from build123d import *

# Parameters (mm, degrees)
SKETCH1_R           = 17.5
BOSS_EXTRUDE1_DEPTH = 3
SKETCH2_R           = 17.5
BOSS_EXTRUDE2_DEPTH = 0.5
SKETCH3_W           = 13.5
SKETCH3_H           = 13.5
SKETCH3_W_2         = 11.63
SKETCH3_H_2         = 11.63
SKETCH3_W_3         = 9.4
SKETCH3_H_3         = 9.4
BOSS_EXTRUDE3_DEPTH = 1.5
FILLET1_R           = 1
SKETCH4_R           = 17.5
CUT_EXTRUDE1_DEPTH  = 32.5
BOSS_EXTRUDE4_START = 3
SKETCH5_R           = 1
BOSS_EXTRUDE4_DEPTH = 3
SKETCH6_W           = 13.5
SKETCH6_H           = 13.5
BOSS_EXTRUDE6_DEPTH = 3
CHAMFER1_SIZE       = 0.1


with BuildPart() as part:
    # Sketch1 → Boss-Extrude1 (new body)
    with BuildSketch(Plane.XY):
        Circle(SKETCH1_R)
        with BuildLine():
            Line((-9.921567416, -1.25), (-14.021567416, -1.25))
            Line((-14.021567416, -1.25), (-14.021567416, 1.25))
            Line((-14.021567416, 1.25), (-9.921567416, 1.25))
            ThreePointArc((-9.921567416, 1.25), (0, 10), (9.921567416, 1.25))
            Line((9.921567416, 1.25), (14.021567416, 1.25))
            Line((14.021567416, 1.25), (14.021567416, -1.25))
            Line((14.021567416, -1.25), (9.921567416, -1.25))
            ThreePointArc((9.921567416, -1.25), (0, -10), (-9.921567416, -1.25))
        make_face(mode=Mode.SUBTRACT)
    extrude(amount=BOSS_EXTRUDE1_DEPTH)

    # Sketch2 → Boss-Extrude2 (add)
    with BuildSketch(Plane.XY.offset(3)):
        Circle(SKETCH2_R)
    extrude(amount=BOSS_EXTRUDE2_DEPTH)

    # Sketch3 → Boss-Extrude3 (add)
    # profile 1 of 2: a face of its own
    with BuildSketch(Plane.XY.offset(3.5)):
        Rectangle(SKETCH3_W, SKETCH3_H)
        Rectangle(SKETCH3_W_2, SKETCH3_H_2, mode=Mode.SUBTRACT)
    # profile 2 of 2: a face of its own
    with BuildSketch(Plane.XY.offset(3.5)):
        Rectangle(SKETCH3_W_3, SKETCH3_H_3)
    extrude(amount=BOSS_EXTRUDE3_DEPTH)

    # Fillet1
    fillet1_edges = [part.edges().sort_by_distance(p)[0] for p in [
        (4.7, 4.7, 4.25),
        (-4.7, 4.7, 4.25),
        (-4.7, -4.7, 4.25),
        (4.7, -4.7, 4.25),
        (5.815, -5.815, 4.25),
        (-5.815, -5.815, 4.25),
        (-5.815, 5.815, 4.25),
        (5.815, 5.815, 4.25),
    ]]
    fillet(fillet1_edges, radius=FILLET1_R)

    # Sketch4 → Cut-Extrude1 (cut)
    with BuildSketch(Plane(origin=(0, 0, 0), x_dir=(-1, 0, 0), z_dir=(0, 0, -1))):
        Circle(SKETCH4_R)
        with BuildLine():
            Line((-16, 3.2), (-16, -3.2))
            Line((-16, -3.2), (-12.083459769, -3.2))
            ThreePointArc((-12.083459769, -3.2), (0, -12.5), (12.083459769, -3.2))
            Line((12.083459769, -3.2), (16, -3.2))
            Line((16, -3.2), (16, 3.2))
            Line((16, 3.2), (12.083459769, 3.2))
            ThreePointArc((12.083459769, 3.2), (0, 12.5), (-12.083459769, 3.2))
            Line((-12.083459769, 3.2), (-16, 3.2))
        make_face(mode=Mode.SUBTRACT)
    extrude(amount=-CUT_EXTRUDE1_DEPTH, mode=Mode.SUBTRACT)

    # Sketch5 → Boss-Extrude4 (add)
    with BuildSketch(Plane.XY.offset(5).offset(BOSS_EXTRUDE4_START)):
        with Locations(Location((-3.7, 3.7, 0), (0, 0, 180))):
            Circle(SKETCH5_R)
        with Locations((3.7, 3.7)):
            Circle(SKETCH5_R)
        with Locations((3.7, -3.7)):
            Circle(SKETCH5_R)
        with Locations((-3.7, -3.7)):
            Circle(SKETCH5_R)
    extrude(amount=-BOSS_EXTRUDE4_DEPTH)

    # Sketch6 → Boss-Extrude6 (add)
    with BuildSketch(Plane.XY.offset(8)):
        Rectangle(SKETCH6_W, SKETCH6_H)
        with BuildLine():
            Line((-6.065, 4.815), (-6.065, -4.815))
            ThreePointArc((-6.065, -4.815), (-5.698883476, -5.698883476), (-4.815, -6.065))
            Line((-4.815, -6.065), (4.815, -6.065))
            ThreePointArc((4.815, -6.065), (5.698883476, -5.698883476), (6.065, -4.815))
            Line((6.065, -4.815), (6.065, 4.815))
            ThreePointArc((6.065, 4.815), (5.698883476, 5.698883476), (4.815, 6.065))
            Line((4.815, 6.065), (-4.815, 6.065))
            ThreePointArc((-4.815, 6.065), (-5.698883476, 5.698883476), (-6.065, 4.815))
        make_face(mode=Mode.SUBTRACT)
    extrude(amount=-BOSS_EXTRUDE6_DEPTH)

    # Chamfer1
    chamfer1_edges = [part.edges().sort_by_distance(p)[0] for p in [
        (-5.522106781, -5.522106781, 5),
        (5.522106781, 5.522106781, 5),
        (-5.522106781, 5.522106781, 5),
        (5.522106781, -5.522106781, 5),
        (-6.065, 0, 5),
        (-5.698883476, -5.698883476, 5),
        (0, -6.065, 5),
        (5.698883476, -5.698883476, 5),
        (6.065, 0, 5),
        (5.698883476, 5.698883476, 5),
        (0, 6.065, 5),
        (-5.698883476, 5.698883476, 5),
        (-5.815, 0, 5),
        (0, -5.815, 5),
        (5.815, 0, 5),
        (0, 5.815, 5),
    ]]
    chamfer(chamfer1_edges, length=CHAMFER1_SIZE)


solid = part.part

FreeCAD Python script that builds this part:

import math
import FreeCAD as App
import Part
import Sketcher

V = App.Vector


def edges_at(feature, points):
    """Names of the edges that pass closest to the given points."""
    edges = feature.Shape.Edges
    near = lambda p: min(range(len(edges)), key=lambda i: edges[i].distToShape(Part.Vertex(*p))[0])
    return sorted({f"Edge{near(p) + 1}" for p in points})


def add_polygon(sketch, points):
    """Adds a closed chain of lines whose ends are joined by coincident constraints."""
    first, n = sketch.GeometryCount, len(points)
    for a, b in zip(points, points[1:] + points[:1]):
        sketch.addGeometry(Part.LineSegment(App.Vector(*a, 0), App.Vector(*b, 0)), False)
    for i in range(n):
        sketch.addConstraint(Sketcher.Constraint("Coincident", first + i, 2, first + (i + 1) % n, 1))

doc = App.newDocument("Part")
params = doc.addObject("Spreadsheet::Sheet", "Params")
for row, (alias, value) in enumerate([
    ("sketch1_diameter", "35 mm"),
    ("sketch1_radius", "10 mm"),
    ("sketch1_width", "4.1 mm"),
    ("sketch1_height", "2.5 mm"),
    ("pad1_length", "3 mm"),
    ("sketch2_diameter", "35 mm"),
    ("pad2_length", "0.5 mm"),
    ("sketch3_width", "13.5 mm"),
    ("sketch3_width2", "9.4 mm"),
    ("sketch3_width3", "11.63 mm"),
    ("pad3_length", "1.5 mm"),
    ("fillet_radius", "1 mm"),
    ("sketch4_diameter", "35 mm"),
    ("sketch4_radius", "12.5 mm"),
    ("sketch4_height", "6.4 mm"),
    ("pocket1_length", "32.5 mm"),
    ("sketch5_diameter", "2 mm"),
    ("pad4_length", "3 mm"),
    ("sketch6_radius", "1.25 mm"),
    ("sketch6_width", "13.5 mm"),
    ("sketch6_width2", "9.63 mm"),
    ("pad5_length", "3 mm"),
    ("chamfer_size", "0.1 mm"),
], start=1):
    params.set(f"A{row}", alias)
    params.set(f"B{row}", "=" + value)
    params.setAlias(f"B{row}", alias)

body = doc.addObject("PartDesign::Body", "Body")

# Sketch on XY plane
sketch1 = body.newObject("Sketcher::SketchObject", "Sketch")
sketch1.AttachmentSupport = (doc.getObject("XY_Plane"), [""])
sketch1.MapMode = "FlatFace"
sketch1.addGeometry(Part.Circle(V(0, 0, 0), V(0, 0, 1), 17.5), False)
sketch1.addGeometry(Part.ArcOfCircle(Part.Circle(V(0, 0, 0), V(0, 0, 1), 10), math.radians(-173), math.radians(-7)), False)
sketch1.addGeometry(Part.LineSegment(V(-9.9, -1.2, 0), V(-14, -1.2, 0)), False)
sketch1.addGeometry(Part.LineSegment(V(-14, -1.2, 0), V(-14, 1.2, 0)), False)
sketch1.addGeometry(Part.LineSegment(V(-14, 1.2, 0), V(-9.9, 1.2, 0)), False)
sketch1.addGeometry(Part.ArcOfCircle(Part.Circle(V(0, 0, 0), V(0, 0, 1), 10), math.radians(7), math.radians(173)), False)
sketch1.addGeometry(Part.LineSegment(V(9.9, 1.2, 0), V(14, 1.2, 0)), False)
sketch1.addGeometry(Part.LineSegment(V(14, 1.2, 0), V(14, -1.2, 0)), False)
sketch1.addGeometry(Part.LineSegment(V(14, -1.2, 0), V(9.9, -1.2, 0)), False)
sketch1.addConstraint(Sketcher.Constraint("Coincident", 1, 1, 2, 1))
sketch1.addConstraint(Sketcher.Constraint("Coincident", 2, 2, 3, 1))
sketch1.addConstraint(Sketcher.Constraint("Coincident", 3, 2, 4, 1))
sketch1.addConstraint(Sketcher.Constraint("Coincident", 4, 2, 5, 2))
sketch1.addConstraint(Sketcher.Constraint("Coincident", 5, 1, 6, 1))
sketch1.addConstraint(Sketcher.Constraint("Coincident", 6, 2, 7, 1))
sketch1.addConstraint(Sketcher.Constraint("Coincident", 7, 2, 8, 1))
sketch1.addConstraint(Sketcher.Constraint("Coincident", 8, 2, 1, 2))
sketch1.addConstraint(Sketcher.Constraint("Horizontal", 2))
sketch1.addConstraint(Sketcher.Constraint("Vertical", 3))
sketch1.addConstraint(Sketcher.Constraint("Horizontal", 4))
sketch1.addConstraint(Sketcher.Constraint("Horizontal", 6))
sketch1.addConstraint(Sketcher.Constraint("Vertical", 7))
sketch1.addConstraint(Sketcher.Constraint("Horizontal", 8))
sketch1.addConstraint(Sketcher.Constraint("Coincident", 0, 3, -1, 1))
sketch1.addConstraint(Sketcher.Constraint("Coincident", 1, 3, -1, 1))
sketch1.addConstraint(Sketcher.Constraint("Coincident", 5, 3, -1, 1))
sketch1.addConstraint(Sketcher.Constraint("Equal", 1, 5))
sketch1.addConstraint(Sketcher.Constraint("Symmetric", 2, 2, 6, 2, -1, 1))
sketch1.addConstraint(Sketcher.Constraint("Horizontal", 4, 2, 5, 1))
sketch1.addConstraint(Sketcher.Constraint("Horizontal", 2, 2, 7, 2))
sketch1.addConstraint(Sketcher.Constraint("Diameter", 0, 35.0))
sketch1.addConstraint(Sketcher.Constraint("Radius", 1, 10.0))
sketch1.addConstraint(Sketcher.Constraint("DistanceX", 2, 2, 2, 1, 4.1))
sketch1.addConstraint(Sketcher.Constraint("DistanceY", 3, 1, 3, 2, 2.5))
sketch1.setExpression("Constraints[21]", "Params.sketch1_diameter")
sketch1.setExpression("Constraints[22]", "Params.sketch1_radius")
sketch1.setExpression("Constraints[23]", "Params.sketch1_width")
sketch1.setExpression("Constraints[24]", "Params.sketch1_height")
pad1 = body.newObject("PartDesign::Pad", "Pad")
pad1.Profile = sketch1
pad1.setExpression("Length", "Params.pad1_length")

# Sketch on XY plane
sketch2 = body.newObject("Sketcher::SketchObject", "Sketch001")
sketch2.AttachmentSupport = (doc.getObject("XY_Plane"), [""])
sketch2.MapMode = "FlatFace"
sketch2.AttachmentOffset = App.Placement(V(0, 0, 3), App.Rotation())
sketch2.addGeometry(Part.Circle(V(0, 0, 0), V(0, 0, 1), 18), False)
sketch2.addConstraint(Sketcher.Constraint("Coincident", 0, 3, -1, 1))
sketch2.addConstraint(Sketcher.Constraint("Diameter", 0, 35.0))
sketch2.setExpression("Constraints[1]", "Params.sketch2_diameter")
pad2 = body.newObject("PartDesign::Pad", "Pad001")
pad2.Profile = sketch2
pad2.setExpression("Length", "Params.pad2_length")

# Sketch on XY plane
sketch3 = body.newObject("Sketcher::SketchObject", "Sketch002")
sketch3.AttachmentSupport = (doc.getObject("XY_Plane"), [""])
sketch3.MapMode = "FlatFace"
sketch3.AttachmentOffset = App.Placement(V(0, 0, 3.5), App.Rotation())
add_polygon(sketch3, [(-7, 7), (-7, -7), (7, -7), (7, 7)])  # lines 0-3
add_polygon(sketch3, [(6, -6), (-6, -6), (-6, 6), (6, 6)])  # lines 4-7
add_polygon(sketch3, [(-5, 5), (-5, -5), (5, -5), (5, 5)])  # lines 8-11
sketch3.addConstraint(Sketcher.Constraint("Vertical", 0))
sketch3.addConstraint(Sketcher.Constraint("Horizontal", 1))
sketch3.addConstraint(Sketcher.Constraint("Vertical", 2))
sketch3.addConstraint(Sketcher.Constraint("Horizontal", 3))
sketch3.addConstraint(Sketcher.Constraint("Horizontal", 4))
sketch3.addConstraint(Sketcher.Constraint("Vertical", 5))
sketch3.addConstraint(Sketcher.Constraint("Horizontal", 6))
sketch3.addConstraint(Sketcher.Constraint("Vertical", 7))
sketch3.addConstraint(Sketcher.Constraint("Vertical", 8))
sketch3.addConstraint(Sketcher.Constraint("Horizontal", 9))
sketch3.addConstraint(Sketcher.Constraint("Vertical", 10))
sketch3.addConstraint(Sketcher.Constraint("Horizontal", 11))
sketch3.addConstraint(Sketcher.Constraint("Symmetric", 0, 2, 2, 2, -1, 1))
sketch3.addConstraint(Sketcher.Constraint("Symmetric", 4, 2, 6, 2, -1, 1))
sketch3.addConstraint(Sketcher.Constraint("Symmetric", 8, 2, 10, 2, -1, 1))
sketch3.addConstraint(Sketcher.Constraint("Equal", 3, 0))
sketch3.addConstraint(Sketcher.Constraint("Equal", 6, 5))
sketch3.addConstraint(Sketcher.Constraint("Equal", 11, 8))
sketch3.addConstraint(Sketcher.Constraint("DistanceX", 1, 1, 1, 2, 13.5))
sketch3.addConstraint(Sketcher.Constraint("DistanceX", 9, 1, 9, 2, 9.4))
sketch3.addConstraint(Sketcher.Constraint("DistanceX", 4, 2, 4, 1, 11.63))
sketch3.setExpression("Constraints[30]", "Params.sketch3_width")
sketch3.setExpression("Constraints[31]", "Params.sketch3_width2")
sketch3.setExpression("Constraints[32]", "Params.sketch3_width3")
pad3 = body.newObject("PartDesign::Pad", "Pad002")
pad3.Profile = sketch3
pad3.setExpression("Length", "Params.pad3_length")
doc.recompute()

fillet = body.newObject("PartDesign::Fillet", "Fillet")
fillet.Base = (pad3, edges_at(pad3, [
    (4.7, 4.7, 4.25),
    (-4.7, 4.7, 4.25),
    (-4.7, -4.7, 4.25),
    (4.7, -4.7, 4.25),
    (5.815, -5.815, 4.25),
    (-5.815, -5.815, 4.25),
    (-5.815, 5.815, 4.25),
    (5.815, 5.815, 4.25),
]))
fillet.setExpression("Radius", "Params.fillet_radius")

# Sketch on XY plane
sketch4 = body.newObject("Sketcher::SketchObject", "Sketch003")
sketch4.AttachmentSupport = (doc.getObject("XY_Plane"), [""])
sketch4.MapMode = "FlatFace"
sketch4.addGeometry(Part.Circle(V(0, 0, 0), V(0, 0, 1), 17.5), False)
sketch4.addGeometry(Part.LineSegment(V(16, -3.2, 0), V(16, 3.2, 0)), False)
sketch4.addGeometry(Part.LineSegment(V(16, 3.2, 0), V(12.1, 3.2, 0)), False)
sketch4.addGeometry(Part.ArcOfCircle(Part.Circle(V(0, 0, 0), V(0, 0, 1), 12.5), math.radians(15), math.radians(165)), False)
sketch4.addGeometry(Part.LineSegment(V(-12.1, 3.2, 0), V(-16, 3.2, 0)), False)
sketch4.addGeometry(Part.LineSegment(V(-16, 3.2, 0), V(-16, -3.2, 0)), False)
sketch4.addGeometry(Part.LineSegment(V(-16, -3.2, 0), V(-12.1, -3.2, 0)), False)
sketch4.addGeometry(Part.ArcOfCircle(Part.Circle(V(0, 0, 0), V(0, 0, 1), 12.5), math.radians(-165), math.radians(-15)), False)
sketch4.addGeometry(Part.LineSegment(V(12.1, -3.2, 0), V(16, -3.2, 0)), False)
sketch4.addConstraint(Sketcher.Constraint("Coincident", 1, 2, 2, 1))
sketch4.addConstraint(Sketcher.Constraint("Coincident", 2, 2, 3, 1))
sketch4.addConstraint(Sketcher.Constraint("Coincident", 3, 2, 4, 1))
sketch4.addConstraint(Sketcher.Constraint("Coincident", 4, 2, 5, 1))
sketch4.addConstraint(Sketcher.Constraint("Coincident", 5, 2, 6, 1))
sketch4.addConstraint(Sketcher.Constraint("Coincident", 6, 2, 7, 1))
sketch4.addConstraint(Sketcher.Constraint("Coincident", 7, 2, 8, 1))
sketch4.addConstraint(Sketcher.Constraint("Coincident", 8, 2, 1, 1))
sketch4.addConstraint(Sketcher.Constraint("Vertical", 1))
sketch4.addConstraint(Sketcher.Constraint("Horizontal", 2))
sketch4.addConstraint(Sketcher.Constraint("Horizontal", 4))
sketch4.addConstraint(Sketcher.Constraint("Vertical", 5))
sketch4.addConstraint(Sketcher.Constraint("Horizontal", 6))
sketch4.addConstraint(Sketcher.Constraint("Horizontal", 8))
sketch4.addConstraint(Sketcher.Constraint("Coincident", 0, 3, -1, 1))
sketch4.addConstraint(Sketcher.Constraint("Coincident", 3, 3, -1, 1))
sketch4.addConstraint(Sketcher.Constraint("Coincident", 7, 3, -1, 1))
sketch4.addConstraint(Sketcher.Constraint("Equal", 3, 7))
sketch4.addConstraint(Sketcher.Constraint("Symmetric", 1, 2, 5, 2, -1, 1))
sketch4.addConstraint(Sketcher.Constraint("Horizontal", 2, 2, 3, 2))
sketch4.addConstraint(Sketcher.Constraint("Horizontal", 6, 2, 7, 2))
sketch4.addConstraint(Sketcher.Constraint("Diameter", 0, 35.0))
sketch4.addConstraint(Sketcher.Constraint("Radius", 3, 12.5))
sketch4.addConstraint(Sketcher.Constraint("DistanceY", 1, 1, 1, 2, 6.4))
sketch4.addConstraint(Sketcher.Constraint("DistanceX", -1, 1, 1, 2, 16.0))
sketch4.setExpression("Constraints[21]", "Params.sketch4_diameter")
sketch4.setExpression("Constraints[22]", "Params.sketch4_radius")
sketch4.setExpression("Constraints[23]", "Params.sketch4_height")
pocket1 = body.newObject("PartDesign::Pocket", "Pocket")
pocket1.Profile = sketch4
pocket1.setExpression("Length", "Params.pocket1_length")
pocket1.Reversed = True

# Sketch on XY plane
sketch5 = body.newObject("Sketcher::SketchObject", "Sketch004")
sketch5.AttachmentSupport = (doc.getObject("XY_Plane"), [""])
sketch5.MapMode = "FlatFace"
sketch5.AttachmentOffset = App.Placement(V(0, 0, 8), App.Rotation())
sketch5.addGeometry(Part.Circle(V(-3.7, 3.7, 0), V(0, 0, 1), 1), False)
sketch5.addGeometry(Part.Circle(V(3.7, 3.7, 0), V(0, 0, 1), 1), False)
sketch5.addGeometry(Part.Circle(V(3.7, -3.7, 0), V(0, 0, 1), 1), False)
sketch5.addGeometry(Part.Circle(V(-3.7, -3.7, 0), V(0, 0, 1), 1), False)
sketch5.addConstraint(Sketcher.Constraint("Equal", 0, 1))
sketch5.addConstraint(Sketcher.Constraint("Equal", 1, 2))
sketch5.addConstraint(Sketcher.Constraint("Equal", 2, 3))
sketch5.addConstraint(Sketcher.Constraint("Symmetric", 0, 3, 2, 3, -1, 1))
sketch5.addConstraint(Sketcher.Constraint("Symmetric", 1, 3, 3, 3, -1, 1))
sketch5.addConstraint(Sketcher.Constraint("Symmetric", 0, 3, 1, 3, -2))
sketch5.addConstraint(Sketcher.Constraint("Diameter", 0, 2.0))
sketch5.addConstraint(Sketcher.Constraint("DistanceX", 0, 3, -1, 1, 3.7))
sketch5.addConstraint(Sketcher.Constraint("DistanceY", -1, 1, 0, 3, 3.7))
sketch5.setExpression("Constraints[6]", "Params.sketch5_diameter")
pad4 = body.newObject("PartDesign::Pad", "Pad003")
pad4.Profile = sketch5
pad4.setExpression("Length", "Params.pad4_length")
pad4.Reversed = True

# Sketch on XY plane
sketch6 = body.newObject("Sketcher::SketchObject", "Sketch005")
sketch6.AttachmentSupport = (doc.getObject("XY_Plane"), [""])
sketch6.MapMode = "FlatFace"
sketch6.AttachmentOffset = App.Placement(V(0, 0, 8), App.Rotation())
add_polygon(sketch6, [(-6.8, 6.8), (-6.8, -6.8), (6.8, -6.8), (6.8, 6.8)])  # lines 0-3
sketch6.addGeometry(Part.LineSegment(V(-6.1, -4.8, 0), V(-6.1, 4.8, 0)), False)  # 4
sketch6.addGeometry(Part.ArcOfCircle(Part.Circle(V(-4.8, 4.8, 0), V(0, 0, 1), 1.3), math.radians(90), math.radians(180)), False)  # 5
sketch6.addGeometry(Part.LineSegment(V(-4.8, 6.1, 0), V(4.8, 6.1, 0)), False)  # 6
sketch6.addGeometry(Part.ArcOfCircle(Part.Circle(V(4.8, 4.8, 0), V(0, 0, 1), 1.3), math.radians(0), math.radians(90)), False)  # 7
sketch6.addGeometry(Part.LineSegment(V(6.1, 4.8, 0), V(6.1, -4.8, 0)), False)  # 8
sketch6.addGeometry(Part.ArcOfCircle(Part.Circle(V(4.8, -4.8, 0), V(0, 0, 1), 1.3), math.radians(-90), math.radians(0)), False)  # 9
sketch6.addGeometry(Part.LineSegment(V(4.8, -6.1, 0), V(-4.8, -6.1, 0)), False)  # 10
sketch6.addGeometry(Part.ArcOfCircle(Part.Circle(V(-4.8, -4.8, 0), V(0, 0, 1), 1.3), math.radians(-180), math.radians(-90)), False)  # 11
sketch6.addConstraint(Sketcher.Constraint("Tangent", 4, 2, 5, 2))
sketch6.addConstraint(Sketcher.Constraint("Tangent", 5, 1, 6, 1))
sketch6.addConstraint(Sketcher.Constraint("Tangent", 6, 2, 7, 2))
sketch6.addConstraint(Sketcher.Constraint("Tangent", 7, 1, 8, 1))
sketch6.addConstraint(Sketcher.Constraint("Tangent", 8, 2, 9, 2))
sketch6.addConstraint(Sketcher.Constraint("Tangent", 9, 1, 10, 1))
sketch6.addConstraint(Sketcher.Constraint("Tangent", 10, 2, 11, 2))
sketch6.addConstraint(Sketcher.Constraint("Tangent", 11, 1, 4, 1))
sketch6.addConstraint(Sketcher.Constraint("Vertical", 0))
sketch6.addConstraint(Sketcher.Constraint("Horizontal", 1))
sketch6.addConstraint(Sketcher.Constraint("Vertical", 2))
sketch6.addConstraint(Sketcher.Constraint("Horizontal", 3))
sketch6.addConstraint(Sketcher.Constraint("Vertical", 4))
sketch6.addConstraint(Sketcher.Constraint("Horizontal", 6))
sketch6.addConstraint(Sketcher.Constraint("Vertical", 8))
sketch6.addConstraint(Sketcher.Constraint("Horizontal", 10))
sketch6.addConstraint(Sketcher.Constraint("Equal", 5, 7))
sketch6.addConstraint(Sketcher.Constraint("Equal", 7, 9))
sketch6.addConstraint(Sketcher.Constraint("Equal", 9, 11))
sketch6.addConstraint(Sketcher.Constraint("Symmetric", 5, 3, 9, 3, -1, 1))
sketch6.addConstraint(Sketcher.Constraint("Symmetric", 0, 2, 2, 2, -1, 1))
sketch6.addConstraint(Sketcher.Constraint("Equal", 3, 0))
sketch6.addConstraint(Sketcher.Constraint("Equal", 10, 4))
sketch6.addConstraint(Sketcher.Constraint("Radius", 5, 1.25))
sketch6.addConstraint(Sketcher.Constraint("DistanceX", 1, 1, 1, 2, 13.5))
sketch6.addConstraint(Sketcher.Constraint("DistanceX", 6, 1, 6, 2, 9.63))
sketch6.setExpression("Constraints[27]", "Params.sketch6_radius")
sketch6.setExpression("Constraints[28]", "Params.sketch6_width")
sketch6.setExpression("Constraints[29]", "Params.sketch6_width2")
pad5 = body.newObject("PartDesign::Pad", "Pad004")
pad5.Profile = sketch6
pad5.setExpression("Length", "Params.pad5_length")
pad5.Reversed = True
doc.recompute()

chamfer = body.newObject("PartDesign::Chamfer", "Chamfer")
chamfer.Base = (pad5, edges_at(pad5, [
    (-5.522, -5.522, 5),
    (5.522, 5.522, 5),
    (-5.522, 5.522, 5),
    (5.522, -5.522, 5),
    (-6.065, 0, 5),
    (-5.699, -5.699, 5),
    (0, -6.065, 5),
    (5.699, -5.699, 5),
    (6.065, 0, 5),
    (5.699, 5.699, 5),
    (0, 6.065, 5),
    (-5.699, 5.699, 5),
    (-5.815, 0, 5),
    (0, -5.815, 5),
    (5.815, 0, 5),
    (0, 5.815, 5),
]))
chamfer.setExpression("Size", "Params.chamfer_size")

doc.recompute()
